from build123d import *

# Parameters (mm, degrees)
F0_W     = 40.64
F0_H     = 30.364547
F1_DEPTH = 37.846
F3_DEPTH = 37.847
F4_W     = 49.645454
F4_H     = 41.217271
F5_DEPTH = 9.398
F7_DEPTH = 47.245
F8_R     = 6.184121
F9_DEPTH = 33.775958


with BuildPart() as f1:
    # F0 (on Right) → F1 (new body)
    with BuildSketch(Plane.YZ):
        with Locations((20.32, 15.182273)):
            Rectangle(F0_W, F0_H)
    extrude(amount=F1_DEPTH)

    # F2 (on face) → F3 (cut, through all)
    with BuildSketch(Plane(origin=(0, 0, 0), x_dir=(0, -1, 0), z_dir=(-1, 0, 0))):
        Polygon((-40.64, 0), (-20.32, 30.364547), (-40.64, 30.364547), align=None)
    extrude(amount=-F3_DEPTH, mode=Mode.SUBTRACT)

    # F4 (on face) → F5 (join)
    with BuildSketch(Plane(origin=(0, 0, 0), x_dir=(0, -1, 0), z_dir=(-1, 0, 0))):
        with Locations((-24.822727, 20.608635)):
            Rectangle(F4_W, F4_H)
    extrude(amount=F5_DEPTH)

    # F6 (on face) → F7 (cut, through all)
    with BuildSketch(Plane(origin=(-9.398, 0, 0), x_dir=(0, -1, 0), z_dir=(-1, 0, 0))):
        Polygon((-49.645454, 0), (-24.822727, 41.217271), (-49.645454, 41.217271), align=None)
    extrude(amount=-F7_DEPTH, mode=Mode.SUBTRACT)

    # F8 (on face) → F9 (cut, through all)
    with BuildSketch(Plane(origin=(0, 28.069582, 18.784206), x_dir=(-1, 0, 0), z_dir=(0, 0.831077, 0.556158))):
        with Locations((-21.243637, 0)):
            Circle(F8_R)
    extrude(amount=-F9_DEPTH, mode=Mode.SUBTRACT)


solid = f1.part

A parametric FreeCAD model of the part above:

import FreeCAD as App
import Part
import Sketcher
from FreeCAD import Vector
Q = App.Units.Quantity

doc = App.newDocument("Part")
body = doc.addObject("PartDesign::Body", "Body")

# Sketch on YZ plane
sketch1 = body.newObject("Sketcher::SketchObject", "Sketch")
sketch1.AttachmentSupport = (doc.getObject("YZ_Plane"), [""])
sketch1.MapMode = "FlatFace"
sketch1.addGeometry([
    Part.LineSegment(Vector(0, 30, 0), Vector(0, 0, 0)),
    Part.LineSegment(Vector(0, 0, 0), Vector(41, 0, 0)),
    Part.LineSegment(Vector(41, 0, 0), Vector(41, 30, 0)),
    Part.LineSegment(Vector(41, 30, 0), Vector(0, 30, 0)),
], False)
sketch1.addConstraint([
    Sketcher.Constraint("Coincident", 0, 2, 1, 1),
    Sketcher.Constraint("Coincident", 1, 2, 2, 1),
    Sketcher.Constraint("Coincident", 2, 2, 3, 1),
    Sketcher.Constraint("Coincident", 3, 2, 0, 1),
    Sketcher.Constraint("Vertical", 0),
    Sketcher.Constraint("Horizontal", 1),
    Sketcher.Constraint("Vertical", 2),
    Sketcher.Constraint("Horizontal", 3),
    Sketcher.Constraint("Coincident", 0, 2, -1, 1),
    Sketcher.Constraint("DistanceX", 1, 1, 1, 2, Q("1.6 in")),
    Sketcher.Constraint("DistanceY", 0, 2, 0, 1, 30.364547),
])
pad1 = body.newObject("PartDesign::Pad", "Pad")
pad1.Profile = sketch1
pad1.Length = Q("1.49 in")

# Sketch on YZ plane
sketch2 = body.newObject("Sketcher::SketchObject", "Sketch001")
sketch2.AttachmentSupport = (doc.getObject("YZ_Plane"), [""])
sketch2.MapMode = "FlatFace"
sketch2.addGeometry([
    Part.LineSegment(Vector(41, 0, 0), Vector(20, 30, 0)),
    Part.LineSegment(Vector(20, 30, 0), Vector(41, 30, 0)),
    Part.LineSegment(Vector(41, 30, 0), Vector(41, 0, 0)),
], False)
sketch2.addConstraint([
    Sketcher.Constraint("Coincident", 0, 2, 1, 1),
    Sketcher.Constraint("Coincident", 1, 2, 2, 1),
    Sketcher.Constraint("Coincident", 2, 2, 0, 1),
    Sketcher.Constraint("Horizontal", 1),
    Sketcher.Constraint("Vertical", 2),
    Sketcher.Constraint("PointOnObject", 2, 2, -1),
    Sketcher.Constraint("DistanceX", 1, 1, 1, 2, Q("0.8 in")),
    Sketcher.Constraint("DistanceX", -1, 1, 0, 2, Q("0.8 in")),
    Sketcher.Constraint("DistanceY", 2, 2, 2, 1, 30.364547),
])
pocket1 = body.newObject("PartDesign::Pocket", "Pocket")
pocket1.Profile = sketch2
pocket1.Type = "ThroughAll"
pocket1.Reversed = True

# Sketch on YZ plane
sketch3 = body.newObject("Sketcher::SketchObject", "Sketch002")
sketch3.AttachmentSupport = (doc.getObject("YZ_Plane"), [""])
sketch3.MapMode = "FlatFace"
sketch3.addGeometry([
    Part.LineSegment(Vector(50, 41, 0), Vector(50, 0, 0)),
    Part.LineSegment(Vector(50, 0, 0), Vector(0, 0, 0)),
    Part.LineSegment(Vector(0, 0, 0), Vector(0, 41, 0)),
    Part.LineSegment(Vector(0, 41, 0), Vector(50, 41, 0)),
], False)
sketch3.addConstraint([
    Sketcher.Constraint("Coincident", 0, 2, 1, 1),
    Sketcher.Constraint("Coincident", 1, 2, 2, 1),
    Sketcher.Constraint("Coincident", 2, 2, 3, 1),
    Sketcher.Constraint("Coincident", 3, 2, 0, 1),
    Sketcher.Constraint("Vertical", 0),
    Sketcher.Constraint("Horizontal", 1),
    Sketcher.Constraint("Vertical", 2),
    Sketcher.Constraint("Horizontal", 3),
    Sketcher.Constraint("Coincident", 1, 2, -1, 1),
    Sketcher.Constraint("DistanceY", 0, 2, 0, 1, 41.217271),
    Sketcher.Constraint("DistanceX", 1, 2, 1, 1, 49.645454),
])
pad2 = body.newObject("PartDesign::Pad", "Pad001")
pad2.Profile = sketch3
pad2.Length = Q("0.37 in")
pad2.Reversed = True

# Sketch on YZ plane
sketch4 = body.newObject("Sketcher::SketchObject", "Sketch003")
sketch4.AttachmentSupport = (doc.getObject("YZ_Plane"), [""])
sketch4.MapMode = "FlatFace"
sketch4.AttachmentOffset = App.Placement(Vector(0, 0, -0.37 * 25.4), App.Rotation())
sketch4.addGeometry([
    Part.LineSegment(Vector(50, 0, 0), Vector(25, 41, 0)),
    Part.LineSegment(Vector(25, 41, 0), Vector(50, 41, 0)),
    Part.LineSegment(Vector(50, 41, 0), Vector(50, 0, 0)),
], False)
sketch4.addConstraint([
    Sketcher.Constraint("Coincident", 0, 2, 1, 1),
    Sketcher.Constraint("Coincident", 1, 2, 2, 1),
    Sketcher.Constraint("Coincident", 2, 2, 0, 1),
    Sketcher.Constraint("Horizontal", 1),
    Sketcher.Constraint("Vertical", 2),
    Sketcher.Constraint("PointOnObject", 2, 2, -1),
    Sketcher.Constraint("DistanceY", 2, 2, 2, 1, 41.217271),
    Sketcher.Constraint("Distance", 0, 48.114771),
    Sketcher.Constraint("DistanceX", -1, 1, 0, 2, 24.822727),
])
pocket2 = body.newObject("PartDesign::Pocket", "Pocket001")
pocket2.Profile = sketch4
pocket2.Type = "ThroughAll"
pocket2.Reversed = True

# Sketch on an angled plane
sketch5 = body.newObject("Sketcher::SketchObject", "Sketch004")
sketch5.Placement = App.Placement(Vector(0, 28.069582, 18.784206), App.Rotation(Vector(-1, 0, 0), Vector(0, -0.556157805, 0.831076709), Vector(0, 0.831076709, 0.556157805), "ZXY"))
sketch5.addGeometry(Part.Circle(Vector(-21, 0, 0), Vector(0, 0, 1), 6), False)
sketch5.addConstraint([
    Sketcher.Constraint("PointOnObject", 0, 3, -1),
    Sketcher.Constraint("Diameter", 0, 12.368242),
    Sketcher.Constraint("DistanceX", 0, 3, -1, 1, 21.243637),
])
pocket3 = body.newObject("PartDesign::Pocket", "Pocket002")
pocket3.Profile = sketch5
pocket3.Type = "ThroughAll"

doc.recompute()
